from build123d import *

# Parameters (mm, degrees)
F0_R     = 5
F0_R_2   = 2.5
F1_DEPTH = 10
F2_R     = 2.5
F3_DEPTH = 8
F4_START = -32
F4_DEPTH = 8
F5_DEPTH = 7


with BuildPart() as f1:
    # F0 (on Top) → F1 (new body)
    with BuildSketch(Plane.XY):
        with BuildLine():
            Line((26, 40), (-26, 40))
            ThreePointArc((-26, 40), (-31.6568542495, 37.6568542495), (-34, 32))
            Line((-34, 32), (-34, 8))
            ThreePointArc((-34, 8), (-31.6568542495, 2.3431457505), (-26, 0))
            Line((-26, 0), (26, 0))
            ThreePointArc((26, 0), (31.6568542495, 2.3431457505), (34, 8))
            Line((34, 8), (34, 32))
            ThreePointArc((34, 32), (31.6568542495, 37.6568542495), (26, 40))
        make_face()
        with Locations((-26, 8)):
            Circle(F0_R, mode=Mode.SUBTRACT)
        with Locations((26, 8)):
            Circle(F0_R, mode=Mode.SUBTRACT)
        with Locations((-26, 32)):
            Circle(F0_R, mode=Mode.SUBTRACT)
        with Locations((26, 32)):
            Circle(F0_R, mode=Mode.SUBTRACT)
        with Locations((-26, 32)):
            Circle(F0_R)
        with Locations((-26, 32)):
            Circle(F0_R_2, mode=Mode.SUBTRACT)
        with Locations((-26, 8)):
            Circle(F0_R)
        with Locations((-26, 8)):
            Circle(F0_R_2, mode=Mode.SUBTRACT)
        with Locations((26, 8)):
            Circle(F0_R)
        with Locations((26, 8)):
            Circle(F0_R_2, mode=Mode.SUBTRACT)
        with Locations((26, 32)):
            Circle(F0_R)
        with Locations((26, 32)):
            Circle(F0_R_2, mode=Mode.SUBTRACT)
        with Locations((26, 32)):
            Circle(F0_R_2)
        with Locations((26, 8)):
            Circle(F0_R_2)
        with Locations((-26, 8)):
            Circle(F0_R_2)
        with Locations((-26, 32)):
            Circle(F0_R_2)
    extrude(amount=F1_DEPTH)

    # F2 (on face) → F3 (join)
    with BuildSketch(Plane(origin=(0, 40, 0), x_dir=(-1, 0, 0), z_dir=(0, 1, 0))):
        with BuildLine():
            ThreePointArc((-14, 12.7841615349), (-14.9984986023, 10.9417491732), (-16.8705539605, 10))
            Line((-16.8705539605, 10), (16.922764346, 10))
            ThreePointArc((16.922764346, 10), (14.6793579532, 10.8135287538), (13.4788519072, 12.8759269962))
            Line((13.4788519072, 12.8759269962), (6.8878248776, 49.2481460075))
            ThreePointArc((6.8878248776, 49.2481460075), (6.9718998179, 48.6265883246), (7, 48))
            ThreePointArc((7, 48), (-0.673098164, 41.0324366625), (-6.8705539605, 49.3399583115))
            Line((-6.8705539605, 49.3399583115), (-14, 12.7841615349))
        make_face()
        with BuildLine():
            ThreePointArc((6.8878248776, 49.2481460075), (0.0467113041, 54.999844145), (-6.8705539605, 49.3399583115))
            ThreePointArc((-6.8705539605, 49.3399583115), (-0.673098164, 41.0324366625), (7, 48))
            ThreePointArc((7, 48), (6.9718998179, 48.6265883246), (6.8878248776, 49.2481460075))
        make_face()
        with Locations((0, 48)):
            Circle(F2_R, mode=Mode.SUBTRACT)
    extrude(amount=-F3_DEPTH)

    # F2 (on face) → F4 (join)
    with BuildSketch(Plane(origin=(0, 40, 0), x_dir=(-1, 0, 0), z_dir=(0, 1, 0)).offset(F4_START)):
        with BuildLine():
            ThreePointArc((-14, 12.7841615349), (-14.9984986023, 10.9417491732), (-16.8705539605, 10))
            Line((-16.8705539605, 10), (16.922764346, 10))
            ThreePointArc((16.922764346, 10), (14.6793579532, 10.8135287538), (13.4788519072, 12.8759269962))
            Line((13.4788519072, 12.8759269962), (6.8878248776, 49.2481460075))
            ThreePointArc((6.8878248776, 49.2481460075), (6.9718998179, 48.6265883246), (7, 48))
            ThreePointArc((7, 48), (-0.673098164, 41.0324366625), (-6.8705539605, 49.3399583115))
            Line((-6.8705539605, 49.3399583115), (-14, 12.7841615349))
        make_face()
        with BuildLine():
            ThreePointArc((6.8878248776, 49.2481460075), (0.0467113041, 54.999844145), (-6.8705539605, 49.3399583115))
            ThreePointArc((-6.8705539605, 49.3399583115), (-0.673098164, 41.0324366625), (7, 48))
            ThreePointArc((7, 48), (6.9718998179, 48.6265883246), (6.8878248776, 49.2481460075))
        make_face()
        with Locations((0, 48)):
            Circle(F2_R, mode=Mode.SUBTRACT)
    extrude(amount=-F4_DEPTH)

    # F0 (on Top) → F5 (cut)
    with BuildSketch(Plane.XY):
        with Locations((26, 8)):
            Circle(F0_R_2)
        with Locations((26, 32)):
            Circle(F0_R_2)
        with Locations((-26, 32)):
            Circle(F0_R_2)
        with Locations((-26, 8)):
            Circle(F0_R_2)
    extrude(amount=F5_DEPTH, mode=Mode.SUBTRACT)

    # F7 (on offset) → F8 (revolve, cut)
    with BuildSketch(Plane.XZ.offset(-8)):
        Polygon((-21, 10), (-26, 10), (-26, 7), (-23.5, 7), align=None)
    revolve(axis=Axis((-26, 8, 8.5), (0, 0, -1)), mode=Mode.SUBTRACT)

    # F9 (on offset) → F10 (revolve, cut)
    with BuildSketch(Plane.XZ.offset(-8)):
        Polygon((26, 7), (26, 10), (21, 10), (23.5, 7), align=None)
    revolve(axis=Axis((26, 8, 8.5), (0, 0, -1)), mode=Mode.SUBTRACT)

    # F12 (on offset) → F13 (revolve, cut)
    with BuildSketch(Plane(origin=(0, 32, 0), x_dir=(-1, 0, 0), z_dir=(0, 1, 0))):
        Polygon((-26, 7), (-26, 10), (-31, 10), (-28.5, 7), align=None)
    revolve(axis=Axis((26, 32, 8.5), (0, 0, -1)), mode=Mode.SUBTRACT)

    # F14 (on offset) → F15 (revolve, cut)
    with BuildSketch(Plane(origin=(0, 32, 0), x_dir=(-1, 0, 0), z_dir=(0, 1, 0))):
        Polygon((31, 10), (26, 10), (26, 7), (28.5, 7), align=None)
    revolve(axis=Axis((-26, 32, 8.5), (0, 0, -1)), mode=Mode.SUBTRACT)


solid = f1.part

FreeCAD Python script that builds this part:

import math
import FreeCAD as App
import Part
import Sketcher
from FreeCAD import Vector

doc = App.newDocument("Part")
body = doc.addObject("PartDesign::Body", "Body")

sketch1 = body.newObject("Sketcher::SketchObject", "Sketch")
sketch1.AttachmentSupport = (doc.getObject("XY_Plane"), [""])
sketch1.MapMode = "FlatFace"
sketch1.addGeometry(Part.LineSegment(Vector(26, 40, 0), Vector(-26, 40, 0)), False)
sketch1.addGeometry(Part.ArcOfCircle(Part.Circle(Vector(-26, 32, 0), Vector(0, 0, 1), 8), math.radians(90), math.radians(180)), False)
sketch1.addGeometry(Part.LineSegment(Vector(-34, 32, 0), Vector(-34, 8, 0)), False)
sketch1.addGeometry(Part.ArcOfCircle(Part.Circle(Vector(-26, 8, 0), Vector(0, 0, 1), 8), math.radians(180), math.radians(270)), False)
sketch1.addGeometry(Part.LineSegment(Vector(-26, 0, 0), Vector(26, 0, 0)), False)
sketch1.addGeometry(Part.ArcOfCircle(Part.Circle(Vector(26, 8, 0), Vector(0, 0, 1), 8), math.radians(-90), math.radians(0)), False)
sketch1.addGeometry(Part.LineSegment(Vector(34, 8, 0), Vector(34, 32, 0)), False)
sketch1.addGeometry(Part.ArcOfCircle(Part.Circle(Vector(26, 32, 0), Vector(0, 0, 1), 8), math.radians(0), math.radians(90)), False)
sketch1.addConstraint(Sketcher.Constraint("Tangent", 0, 2, 1, 1))
sketch1.addConstraint(Sketcher.Constraint("Tangent", 1, 2, 2, 1))
sketch1.addConstraint(Sketcher.Constraint("Tangent", 2, 2, 3, 1))
sketch1.addConstraint(Sketcher.Constraint("Tangent", 3, 2, 4, 1))
sketch1.addConstraint(Sketcher.Constraint("Tangent", 4, 2, 5, 1))
sketch1.addConstraint(Sketcher.Constraint("Tangent", 5, 2, 6, 1))
sketch1.addConstraint(Sketcher.Constraint("Tangent", 6, 2, 7, 1))
sketch1.addConstraint(Sketcher.Constraint("Tangent", 7, 2, 0, 1))
sketch1.addConstraint(Sketcher.Constraint("Horizontal", 0))
sketch1.addConstraint(Sketcher.Constraint("Vertical", 2))
sketch1.addConstraint(Sketcher.Constraint("Horizontal", 4))
sketch1.addConstraint(Sketcher.Constraint("Vertical", 6))
sketch1.addConstraint(Sketcher.Constraint("Equal", 1, 3))
sketch1.addConstraint(Sketcher.Constraint("Equal", 3, 5))
sketch1.addConstraint(Sketcher.Constraint("Equal", 5, 7))
sketch1.addConstraint(Sketcher.Constraint("Symmetric", 3, 2, 4, 2, -1, 1))
sketch1.addConstraint(Sketcher.Constraint("Radius", 1, 8.0))
sketch1.addConstraint(Sketcher.Constraint("DistanceX", 0, 2, 0, 1, 52.0))
sketch1.addConstraint(Sketcher.Constraint("DistanceY", 2, 2, 2, 1, 24.0))
pad1 = body.newObject("PartDesign::Pad", "Pad")
pad1.Profile = sketch1
pad1.Length = 10

sketch2 = body.newObject("Sketcher::SketchObject", "Sketch001")
sketch2.AttachmentSupport = (doc.getObject("XZ_Plane"), [""])
sketch2.MapMode = "FlatFace"
sketch2.AttachmentOffset = App.Placement(Vector(0, 0, -40), App.Rotation())
sketch2.addGeometry(Part.ArcOfCircle(Part.Circle(Vector(17.4, 13.5, 0), Vector(0, 0, 1), 3.5), math.radians(-169), math.radians(-99)), False)
sketch2.addGeometry(Part.LineSegment(Vector(16.9, 10, 0), Vector(-16.9, 10, 0)), False)
sketch2.addGeometry(Part.ArcOfCircle(Part.Circle(Vector(-16.9, 13.5, 0), Vector(0, 0, 1), 3.5), math.radians(-90), math.radians(-10)), False)
sketch2.addGeometry(Part.LineSegment(Vector(-13.5, 12.9, 0), Vector(-6.9, 49.2, 0)), False)
sketch2.addGeometry(Part.ArcOfCircle(Part.Circle(Vector(0, 48, 0), Vector(0, 0, 1), 7), math.radians(11), math.radians(170)), False)
sketch2.addGeometry(Part.LineSegment(Vector(6.9, 49.3, 0), Vector(14, 12.8, 0)), False)
sketch2.addGeometry(Part.Circle(Vector(0, 48, 0), Vector(0, 0, 1), 2.5), False)
sketch2.addConstraint(Sketcher.Constraint("Coincident", 0, 2, 1, 1))
sketch2.addConstraint(Sketcher.Constraint("Tangent", 1, 2, 2, 1))
sketch2.addConstraint(Sketcher.Constraint("Tangent", 2, 2, 3, 1))
sketch2.addConstraint(Sketcher.Constraint("Tangent", 3, 2, 4, 2))
sketch2.addConstraint(Sketcher.Constraint("Tangent", 4, 1, 5, 1))
sketch2.addConstraint(Sketcher.Constraint("Tangent", 5, 2, 0, 1))
sketch2.addConstraint(Sketcher.Constraint("Horizontal", 1))
sketch2.addConstraint(Sketcher.Constraint("Coincident", 6, 3, 4, 3))
sketch2.addConstraint(Sketcher.Constraint("Equal", 0, 2))
sketch2.addConstraint(Sketcher.Constraint("PointOnObject", 4, 3, -2))
sketch2.addConstraint(Sketcher.Constraint("Diameter", 6, 5.0))
sketch2.addConstraint(Sketcher.Constraint("Radius", 4, 7.0))
sketch2.addConstraint(Sketcher.Constraint("Radius", 0, 3.5))
sketch2.addConstraint(Sketcher.Constraint("DistanceY", -1, 1, 4, 3, 48.0))
sketch2.addConstraint(Sketcher.Constraint("DistanceY", -1, 1, 0, 2, 10.0))
sketch2.addConstraint(Sketcher.Constraint("DistanceX", -1, 1, 5, 2, 14.0))
sketch2.addConstraint(Sketcher.Constraint("DistanceX", 4, 1, 0, 2, 10.0))
sketch2.addConstraint(Sketcher.Constraint("DistanceX", 1, 2, 1, 1, 33.793318))
pad2 = body.newObject("PartDesign::Pad", "Pad001")
pad2.Profile = sketch2
pad2.Length = 8

sketch3 = body.newObject("Sketcher::SketchObject", "Sketch002")
sketch3.AttachmentSupport = (doc.getObject("XZ_Plane"), [""])
sketch3.MapMode = "FlatFace"
sketch3.AttachmentOffset = App.Placement(Vector(0, 0, -8), App.Rotation())
sketch3.addGeometry(Part.ArcOfCircle(Part.Circle(Vector(17.4, 13.5, 0), Vector(0, 0, 1), 3.5), math.radians(-169), math.radians(-99)), False)
sketch3.addGeometry(Part.LineSegment(Vector(16.9, 10, 0), Vector(-16.9, 10, 0)), False)
sketch3.addGeometry(Part.ArcOfCircle(Part.Circle(Vector(-16.9, 13.5, 0), Vector(0, 0, 1), 3.5), math.radians(-90), math.radians(-10)), False)
sketch3.addGeometry(Part.LineSegment(Vector(-13.5, 12.9, 0), Vector(-6.9, 49.2, 0)), False)
sketch3.addGeometry(Part.ArcOfCircle(Part.Circle(Vector(0, 48, 0), Vector(0, 0, 1), 7), math.radians(11), math.radians(170)), False)
sketch3.addGeometry(Part.LineSegment(Vector(6.9, 49.3, 0), Vector(14, 12.8, 0)), False)
sketch3.addGeometry(Part.Circle(Vector(0, 48, 0), Vector(0, 0, 1), 2.5), False)
sketch3.addConstraint(Sketcher.Constraint("Coincident", 0, 2, 1, 1))
sketch3.addConstraint(Sketcher.Constraint("Tangent", 1, 2, 2, 1))
sketch3.addConstraint(Sketcher.Constraint("Tangent", 2, 2, 3, 1))
sketch3.addConstraint(Sketcher.Constraint("Tangent", 3, 2, 4, 2))
sketch3.addConstraint(Sketcher.Constraint("Tangent", 4, 1, 5, 1))
sketch3.addConstraint(Sketcher.Constraint("Tangent", 5, 2, 0, 1))
sketch3.addConstraint(Sketcher.Constraint("Horizontal", 1))
sketch3.addConstraint(Sketcher.Constraint("Coincident", 6, 3, 4, 3))
sketch3.addConstraint(Sketcher.Constraint("Equal", 0, 2))
sketch3.addConstraint(Sketcher.Constraint("PointOnObject", 4, 3, -2))
sketch3.addConstraint(Sketcher.Constraint("Diameter", 6, 5.0))
sketch3.addConstraint(Sketcher.Constraint("Radius", 4, 7.0))
sketch3.addConstraint(Sketcher.Constraint("Radius", 0, 3.5))
sketch3.addConstraint(Sketcher.Constraint("DistanceY", -1, 1, 4, 3, 48.0))
sketch3.addConstraint(Sketcher.Constraint("DistanceY", -1, 1, 0, 2, 10.0))
sketch3.addConstraint(Sketcher.Constraint("DistanceX", -1, 1, 5, 2, 14.0))
sketch3.addConstraint(Sketcher.Constraint("DistanceX", 4, 1, 0, 2, 10.0))
sketch3.addConstraint(Sketcher.Constraint("DistanceX", 1, 2, 1, 1, 33.793318))
pad3 = body.newObject("PartDesign::Pad", "Pad002")
pad3.Profile = sketch3
pad3.Length = 8

sketch4 = body.newObject("Sketcher::SketchObject", "Sketch003")
sketch4.AttachmentSupport = (doc.getObject("XY_Plane"), [""])
sketch4.MapMode = "FlatFace"
sketch4.addGeometry(Part.Circle(Vector(26, 8, 0), Vector(0, 0, 1), 2.5), False)
sketch4.addGeometry(Part.Circle(Vector(26, 32, 0), Vector(0, 0, 1), 2.5), False)
sketch4.addGeometry(Part.Circle(Vector(-26, 32, 0), Vector(0, 0, 1), 2.5), False)
sketch4.addGeometry(Part.Circle(Vector(-26, 8, 0), Vector(0, 0, 1), 2.5), False)
sketch4.addConstraint(Sketcher.Constraint("Equal", 0, 1))
sketch4.addConstraint(Sketcher.Constraint("Equal", 1, 2))
sketch4.addConstraint(Sketcher.Constraint("Equal", 2, 3))
sketch4.addConstraint(Sketcher.Constraint("Symmetric", 1, 3, 2, 3, -2))
sketch4.addConstraint(Sketcher.Constraint("Symmetric", 0, 3, 3, 3, -2))
sketch4.addConstraint(Sketcher.Constraint("Vertical", 0, 3, 1, 3))
sketch4.addConstraint(Sketcher.Constraint("Diameter", 0, 5.0))
sketch4.addConstraint(Sketcher.Constraint("DistanceX", -1, 1, 0, 3, 26.0))
sketch4.addConstraint(Sketcher.Constraint("DistanceY", -1, 1, 0, 3, 8.0))
sketch4.addConstraint(Sketcher.Constraint("DistanceY", -1, 1, 1, 3, 32.0))
pocket1 = body.newObject("PartDesign::Pocket", "Pocket")
pocket1.Profile = sketch4
pocket1.Length = 7
pocket1.Reversed = True

sketch5 = body.newObject("Sketcher::SketchObject", "Sketch004")
sketch5.AttachmentSupport = (doc.getObject("XZ_Plane"), [""])
sketch5.MapMode = "FlatFace"
sketch5.AttachmentOffset = App.Placement(Vector(0, 0, -8), App.Rotation())
sketch5.addGeometry(Part.LineSegment(Vector(-21, 10, 0), Vector(-26, 10, 0)), False)
sketch5.addGeometry(Part.LineSegment(Vector(-26, 10, 0), Vector(-26, 7, 0)), False)
sketch5.addGeometry(Part.LineSegment(Vector(-26, 7, 0), Vector(-23.5, 7, 0)), False)
sketch5.addGeometry(Part.LineSegment(Vector(-23.5, 7, 0), Vector(-21, 10, 0)), False)
sketch5.addGeometry(Part.LineSegment(Vector(-26, 10, 0), Vector(-26, 7, 0)), True)
sketch5.addConstraint(Sketcher.Constraint("Coincident", 0, 2, 1, 1))
sketch5.addConstraint(Sketcher.Constraint("Coincident", 1, 2, 2, 1))
sketch5.addConstraint(Sketcher.Constraint("Coincident", 2, 2, 3, 1))
sketch5.addConstraint(Sketcher.Constraint("Coincident", 3, 2, 0, 1))
sketch5.addConstraint(Sketcher.Constraint("Horizontal", 0))
sketch5.addConstraint(Sketcher.Constraint("Vertical", 1))
sketch5.addConstraint(Sketcher.Constraint("Horizontal", 2))
sketch5.addConstraint(Sketcher.Constraint("Vertical", 4))
sketch5.addConstraint(Sketcher.Constraint("Coincident", 4, 1, 0, 2))
sketch5.addConstraint(Sketcher.Constraint("Horizontal", 2, 2, 4, 2))
sketch5.addConstraint(Sketcher.Constraint("DistanceX", 0, 2, 0, 1, 5.0))
sketch5.addConstraint(Sketcher.Constraint("DistanceY", 1, 2, 1, 1, 3.0))
sketch5.addConstraint(Sketcher.Constraint("DistanceX", 2, 1, 2, 2, 2.5))
sketch5.addConstraint(Sketcher.Constraint("DistanceX", 0, 2, -1, 1, 26.0))
sketch5.addConstraint(Sketcher.Constraint("DistanceY", -1, 1, 0, 2, 10.0))
groove = body.newObject("PartDesign::Groove", "Groove")
groove.Profile = sketch5
groove.ReferenceAxis = (sketch5, ["Axis0"])
groove.Angle = 360

sketch6 = body.newObject("Sketcher::SketchObject", "Sketch005")
sketch6.AttachmentSupport = (doc.getObject("XZ_Plane"), [""])
sketch6.MapMode = "FlatFace"
sketch6.AttachmentOffset = App.Placement(Vector(0, 0, -8), App.Rotation())
sketch6.addGeometry(Part.LineSegment(Vector(26, 7, 0), Vector(26, 10, 0)), False)
sketch6.addGeometry(Part.LineSegment(Vector(26, 10, 0), Vector(21, 10, 0)), False)
sketch6.addGeometry(Part.LineSegment(Vector(21, 10, 0), Vector(23.5, 7, 0)), False)
sketch6.addGeometry(Part.LineSegment(Vector(23.5, 7, 0), Vector(26, 7, 0)), False)
sketch6.addGeometry(Part.LineSegment(Vector(26, 10, 0), Vector(26, 7, 0)), True)
sketch6.addConstraint(Sketcher.Constraint("Coincident", 0, 2, 1, 1))
sketch6.addConstraint(Sketcher.Constraint("Coincident", 1, 2, 2, 1))
sketch6.addConstraint(Sketcher.Constraint("Coincident", 2, 2, 3, 1))
sketch6.addConstraint(Sketcher.Constraint("Coincident", 3, 2, 0, 1))
sketch6.addConstraint(Sketcher.Constraint("Vertical", 0))
sketch6.addConstraint(Sketcher.Constraint("Horizontal", 1))
sketch6.addConstraint(Sketcher.Constraint("Horizontal", 3))
sketch6.addConstraint(Sketcher.Constraint("Vertical", 4))
sketch6.addConstraint(Sketcher.Constraint("Coincident", 4, 1, 0, 2))
sketch6.addConstraint(Sketcher.Constraint("Horizontal", 2, 2, 4, 2))
sketch6.addConstraint(Sketcher.Constraint("DistanceX", 1, 2, 1, 1, 5.0))
sketch6.addConstraint(Sketcher.Constraint("DistanceY", 0, 1, 0, 2, 3.0))
sketch6.addConstraint(Sketcher.Constraint("DistanceX", 3, 1, 3, 2, 2.5))
sketch6.addConstraint(Sketcher.Constraint("DistanceX", -1, 1, 0, 2, 26.0))
sketch6.addConstraint(Sketcher.Constraint("DistanceY", -1, 1, 0, 2, 10.0))
groove2 = body.newObject("PartDesign::Groove", "Groove001")
groove2.Profile = sketch6
groove2.ReferenceAxis = (sketch6, ["Axis0"])
groove2.Angle = 360

sketch7 = body.newObject("Sketcher::SketchObject", "Sketch006")
sketch7.AttachmentSupport = (doc.getObject("XZ_Plane"), [""])
sketch7.MapMode = "FlatFace"
sketch7.AttachmentOffset = App.Placement(Vector(0, 0, -32), App.Rotation())
sketch7.addGeometry(Part.LineSegment(Vector(26, 7, 0), Vector(26, 10, 0)), False)
sketch7.addGeometry(Part.LineSegment(Vector(26, 10, 0), Vector(31, 10, 0)), False)
sketch7.addGeometry(Part.LineSegment(Vector(31, 10, 0), Vector(28.5, 7, 0)), False)
sketch7.addGeometry(Part.LineSegment(Vector(28.5, 7, 0), Vector(26, 7, 0)), False)
sketch7.addGeometry(Part.LineSegment(Vector(26, 10, 0), Vector(26, 7, 0)), True)
sketch7.addConstraint(Sketcher.Constraint("Coincident", 0, 2, 1, 1))
sketch7.addConstraint(Sketcher.Constraint("Coincident", 1, 2, 2, 1))
sketch7.addConstraint(Sketcher.Constraint("Coincident", 2, 2, 3, 1))
sketch7.addConstraint(Sketcher.Constraint("Coincident", 3, 2, 0, 1))
sketch7.addConstraint(Sketcher.Constraint("Vertical", 0))
sketch7.addConstraint(Sketcher.Constraint("Horizontal", 1))
sketch7.addConstraint(Sketcher.Constraint("Horizontal", 3))
sketch7.addConstraint(Sketcher.Constraint("Vertical", 4))
sketch7.addConstraint(Sketcher.Constraint("Coincident", 4, 1, 0, 2))
sketch7.addConstraint(Sketcher.Constraint("Horizontal", 2, 2, 4, 2))
sketch7.addConstraint(Sketcher.Constraint("DistanceX", 1, 1, 1, 2, 5.0))
sketch7.addConstraint(Sketcher.Constraint("DistanceY", 0, 1, 0, 2, 3.0))
sketch7.addConstraint(Sketcher.Constraint("DistanceX", 3, 2, 3, 1, 2.5))
sketch7.addConstraint(Sketcher.Constraint("DistanceX", -1, 1, 0, 2, 26.0))
sketch7.addConstraint(Sketcher.Constraint("DistanceY", -1, 1, 0, 2, 10.0))
groove3 = body.newObject("PartDesign::Groove", "Groove002")
groove3.Profile = sketch7
groove3.ReferenceAxis = (sketch7, ["Axis0"])
groove3.Angle = 360

sketch8 = body.newObject("Sketcher::SketchObject", "Sketch007")
sketch8.AttachmentSupport = (doc.getObject("XZ_Plane"), [""])
sketch8.MapMode = "FlatFace"
sketch8.AttachmentOffset = App.Placement(Vector(0, 0, -32), App.Rotation())
sketch8.addGeometry(Part.LineSegment(Vector(-31, 10, 0), Vector(-26, 10, 0)), False)
sketch8.addGeometry(Part.LineSegment(Vector(-26, 10, 0), Vector(-26, 7, 0)), False)
sketch8.addGeometry(Part.LineSegment(Vector(-26, 7, 0), Vector(-28.5, 7, 0)), False)
sketch8.addGeometry(Part.LineSegment(Vector(-28.5, 7, 0), Vector(-31, 10, 0)), False)
sketch8.addGeometry(Part.LineSegment(Vector(-26, 10, 0), Vector(-26, 7, 0)), True)
sketch8.addConstraint(Sketcher.Constraint("Coincident", 0, 2, 1, 1))
sketch8.addConstraint(Sketcher.Constraint("Coincident", 1, 2, 2, 1))
sketch8.addConstraint(Sketcher.Constraint("Coincident", 2, 2, 3, 1))
sketch8.addConstraint(Sketcher.Constraint("Coincident", 3, 2, 0, 1))
sketch8.addConstraint(Sketcher.Constraint("Horizontal", 0))
sketch8.addConstraint(Sketcher.Constraint("Vertical", 1))
sketch8.addConstraint(Sketcher.Constraint("Horizontal", 2))
sketch8.addConstraint(Sketcher.Constraint("Vertical", 4))
sketch8.addConstraint(Sketcher.Constraint("Coincident", 4, 1, 0, 2))
sketch8.addConstraint(Sketcher.Constraint("Horizontal", 2, 2, 4, 2))
sketch8.addConstraint(Sketcher.Constraint("DistanceX", 0, 1, 0, 2, 5.0))
sketch8.addConstraint(Sketcher.Constraint("DistanceY", 1, 2, 1, 1, 3.0))
sketch8.addConstraint(Sketcher.Constraint("DistanceX", 2, 2, 2, 1, 2.5))
sketch8.addConstraint(Sketcher.Constraint("DistanceX", 0, 2, -1, 1, 26.0))
sketch8.addConstraint(Sketcher.Constraint("DistanceY", -1, 1, 0, 2, 10.0))
groove4 = body.newObject("PartDesign::Groove", "Groove003")
groove4.Profile = sketch8
groove4.ReferenceAxis = (sketch8, ["Axis0"])
groove4.Angle = 360

doc.recompute()
